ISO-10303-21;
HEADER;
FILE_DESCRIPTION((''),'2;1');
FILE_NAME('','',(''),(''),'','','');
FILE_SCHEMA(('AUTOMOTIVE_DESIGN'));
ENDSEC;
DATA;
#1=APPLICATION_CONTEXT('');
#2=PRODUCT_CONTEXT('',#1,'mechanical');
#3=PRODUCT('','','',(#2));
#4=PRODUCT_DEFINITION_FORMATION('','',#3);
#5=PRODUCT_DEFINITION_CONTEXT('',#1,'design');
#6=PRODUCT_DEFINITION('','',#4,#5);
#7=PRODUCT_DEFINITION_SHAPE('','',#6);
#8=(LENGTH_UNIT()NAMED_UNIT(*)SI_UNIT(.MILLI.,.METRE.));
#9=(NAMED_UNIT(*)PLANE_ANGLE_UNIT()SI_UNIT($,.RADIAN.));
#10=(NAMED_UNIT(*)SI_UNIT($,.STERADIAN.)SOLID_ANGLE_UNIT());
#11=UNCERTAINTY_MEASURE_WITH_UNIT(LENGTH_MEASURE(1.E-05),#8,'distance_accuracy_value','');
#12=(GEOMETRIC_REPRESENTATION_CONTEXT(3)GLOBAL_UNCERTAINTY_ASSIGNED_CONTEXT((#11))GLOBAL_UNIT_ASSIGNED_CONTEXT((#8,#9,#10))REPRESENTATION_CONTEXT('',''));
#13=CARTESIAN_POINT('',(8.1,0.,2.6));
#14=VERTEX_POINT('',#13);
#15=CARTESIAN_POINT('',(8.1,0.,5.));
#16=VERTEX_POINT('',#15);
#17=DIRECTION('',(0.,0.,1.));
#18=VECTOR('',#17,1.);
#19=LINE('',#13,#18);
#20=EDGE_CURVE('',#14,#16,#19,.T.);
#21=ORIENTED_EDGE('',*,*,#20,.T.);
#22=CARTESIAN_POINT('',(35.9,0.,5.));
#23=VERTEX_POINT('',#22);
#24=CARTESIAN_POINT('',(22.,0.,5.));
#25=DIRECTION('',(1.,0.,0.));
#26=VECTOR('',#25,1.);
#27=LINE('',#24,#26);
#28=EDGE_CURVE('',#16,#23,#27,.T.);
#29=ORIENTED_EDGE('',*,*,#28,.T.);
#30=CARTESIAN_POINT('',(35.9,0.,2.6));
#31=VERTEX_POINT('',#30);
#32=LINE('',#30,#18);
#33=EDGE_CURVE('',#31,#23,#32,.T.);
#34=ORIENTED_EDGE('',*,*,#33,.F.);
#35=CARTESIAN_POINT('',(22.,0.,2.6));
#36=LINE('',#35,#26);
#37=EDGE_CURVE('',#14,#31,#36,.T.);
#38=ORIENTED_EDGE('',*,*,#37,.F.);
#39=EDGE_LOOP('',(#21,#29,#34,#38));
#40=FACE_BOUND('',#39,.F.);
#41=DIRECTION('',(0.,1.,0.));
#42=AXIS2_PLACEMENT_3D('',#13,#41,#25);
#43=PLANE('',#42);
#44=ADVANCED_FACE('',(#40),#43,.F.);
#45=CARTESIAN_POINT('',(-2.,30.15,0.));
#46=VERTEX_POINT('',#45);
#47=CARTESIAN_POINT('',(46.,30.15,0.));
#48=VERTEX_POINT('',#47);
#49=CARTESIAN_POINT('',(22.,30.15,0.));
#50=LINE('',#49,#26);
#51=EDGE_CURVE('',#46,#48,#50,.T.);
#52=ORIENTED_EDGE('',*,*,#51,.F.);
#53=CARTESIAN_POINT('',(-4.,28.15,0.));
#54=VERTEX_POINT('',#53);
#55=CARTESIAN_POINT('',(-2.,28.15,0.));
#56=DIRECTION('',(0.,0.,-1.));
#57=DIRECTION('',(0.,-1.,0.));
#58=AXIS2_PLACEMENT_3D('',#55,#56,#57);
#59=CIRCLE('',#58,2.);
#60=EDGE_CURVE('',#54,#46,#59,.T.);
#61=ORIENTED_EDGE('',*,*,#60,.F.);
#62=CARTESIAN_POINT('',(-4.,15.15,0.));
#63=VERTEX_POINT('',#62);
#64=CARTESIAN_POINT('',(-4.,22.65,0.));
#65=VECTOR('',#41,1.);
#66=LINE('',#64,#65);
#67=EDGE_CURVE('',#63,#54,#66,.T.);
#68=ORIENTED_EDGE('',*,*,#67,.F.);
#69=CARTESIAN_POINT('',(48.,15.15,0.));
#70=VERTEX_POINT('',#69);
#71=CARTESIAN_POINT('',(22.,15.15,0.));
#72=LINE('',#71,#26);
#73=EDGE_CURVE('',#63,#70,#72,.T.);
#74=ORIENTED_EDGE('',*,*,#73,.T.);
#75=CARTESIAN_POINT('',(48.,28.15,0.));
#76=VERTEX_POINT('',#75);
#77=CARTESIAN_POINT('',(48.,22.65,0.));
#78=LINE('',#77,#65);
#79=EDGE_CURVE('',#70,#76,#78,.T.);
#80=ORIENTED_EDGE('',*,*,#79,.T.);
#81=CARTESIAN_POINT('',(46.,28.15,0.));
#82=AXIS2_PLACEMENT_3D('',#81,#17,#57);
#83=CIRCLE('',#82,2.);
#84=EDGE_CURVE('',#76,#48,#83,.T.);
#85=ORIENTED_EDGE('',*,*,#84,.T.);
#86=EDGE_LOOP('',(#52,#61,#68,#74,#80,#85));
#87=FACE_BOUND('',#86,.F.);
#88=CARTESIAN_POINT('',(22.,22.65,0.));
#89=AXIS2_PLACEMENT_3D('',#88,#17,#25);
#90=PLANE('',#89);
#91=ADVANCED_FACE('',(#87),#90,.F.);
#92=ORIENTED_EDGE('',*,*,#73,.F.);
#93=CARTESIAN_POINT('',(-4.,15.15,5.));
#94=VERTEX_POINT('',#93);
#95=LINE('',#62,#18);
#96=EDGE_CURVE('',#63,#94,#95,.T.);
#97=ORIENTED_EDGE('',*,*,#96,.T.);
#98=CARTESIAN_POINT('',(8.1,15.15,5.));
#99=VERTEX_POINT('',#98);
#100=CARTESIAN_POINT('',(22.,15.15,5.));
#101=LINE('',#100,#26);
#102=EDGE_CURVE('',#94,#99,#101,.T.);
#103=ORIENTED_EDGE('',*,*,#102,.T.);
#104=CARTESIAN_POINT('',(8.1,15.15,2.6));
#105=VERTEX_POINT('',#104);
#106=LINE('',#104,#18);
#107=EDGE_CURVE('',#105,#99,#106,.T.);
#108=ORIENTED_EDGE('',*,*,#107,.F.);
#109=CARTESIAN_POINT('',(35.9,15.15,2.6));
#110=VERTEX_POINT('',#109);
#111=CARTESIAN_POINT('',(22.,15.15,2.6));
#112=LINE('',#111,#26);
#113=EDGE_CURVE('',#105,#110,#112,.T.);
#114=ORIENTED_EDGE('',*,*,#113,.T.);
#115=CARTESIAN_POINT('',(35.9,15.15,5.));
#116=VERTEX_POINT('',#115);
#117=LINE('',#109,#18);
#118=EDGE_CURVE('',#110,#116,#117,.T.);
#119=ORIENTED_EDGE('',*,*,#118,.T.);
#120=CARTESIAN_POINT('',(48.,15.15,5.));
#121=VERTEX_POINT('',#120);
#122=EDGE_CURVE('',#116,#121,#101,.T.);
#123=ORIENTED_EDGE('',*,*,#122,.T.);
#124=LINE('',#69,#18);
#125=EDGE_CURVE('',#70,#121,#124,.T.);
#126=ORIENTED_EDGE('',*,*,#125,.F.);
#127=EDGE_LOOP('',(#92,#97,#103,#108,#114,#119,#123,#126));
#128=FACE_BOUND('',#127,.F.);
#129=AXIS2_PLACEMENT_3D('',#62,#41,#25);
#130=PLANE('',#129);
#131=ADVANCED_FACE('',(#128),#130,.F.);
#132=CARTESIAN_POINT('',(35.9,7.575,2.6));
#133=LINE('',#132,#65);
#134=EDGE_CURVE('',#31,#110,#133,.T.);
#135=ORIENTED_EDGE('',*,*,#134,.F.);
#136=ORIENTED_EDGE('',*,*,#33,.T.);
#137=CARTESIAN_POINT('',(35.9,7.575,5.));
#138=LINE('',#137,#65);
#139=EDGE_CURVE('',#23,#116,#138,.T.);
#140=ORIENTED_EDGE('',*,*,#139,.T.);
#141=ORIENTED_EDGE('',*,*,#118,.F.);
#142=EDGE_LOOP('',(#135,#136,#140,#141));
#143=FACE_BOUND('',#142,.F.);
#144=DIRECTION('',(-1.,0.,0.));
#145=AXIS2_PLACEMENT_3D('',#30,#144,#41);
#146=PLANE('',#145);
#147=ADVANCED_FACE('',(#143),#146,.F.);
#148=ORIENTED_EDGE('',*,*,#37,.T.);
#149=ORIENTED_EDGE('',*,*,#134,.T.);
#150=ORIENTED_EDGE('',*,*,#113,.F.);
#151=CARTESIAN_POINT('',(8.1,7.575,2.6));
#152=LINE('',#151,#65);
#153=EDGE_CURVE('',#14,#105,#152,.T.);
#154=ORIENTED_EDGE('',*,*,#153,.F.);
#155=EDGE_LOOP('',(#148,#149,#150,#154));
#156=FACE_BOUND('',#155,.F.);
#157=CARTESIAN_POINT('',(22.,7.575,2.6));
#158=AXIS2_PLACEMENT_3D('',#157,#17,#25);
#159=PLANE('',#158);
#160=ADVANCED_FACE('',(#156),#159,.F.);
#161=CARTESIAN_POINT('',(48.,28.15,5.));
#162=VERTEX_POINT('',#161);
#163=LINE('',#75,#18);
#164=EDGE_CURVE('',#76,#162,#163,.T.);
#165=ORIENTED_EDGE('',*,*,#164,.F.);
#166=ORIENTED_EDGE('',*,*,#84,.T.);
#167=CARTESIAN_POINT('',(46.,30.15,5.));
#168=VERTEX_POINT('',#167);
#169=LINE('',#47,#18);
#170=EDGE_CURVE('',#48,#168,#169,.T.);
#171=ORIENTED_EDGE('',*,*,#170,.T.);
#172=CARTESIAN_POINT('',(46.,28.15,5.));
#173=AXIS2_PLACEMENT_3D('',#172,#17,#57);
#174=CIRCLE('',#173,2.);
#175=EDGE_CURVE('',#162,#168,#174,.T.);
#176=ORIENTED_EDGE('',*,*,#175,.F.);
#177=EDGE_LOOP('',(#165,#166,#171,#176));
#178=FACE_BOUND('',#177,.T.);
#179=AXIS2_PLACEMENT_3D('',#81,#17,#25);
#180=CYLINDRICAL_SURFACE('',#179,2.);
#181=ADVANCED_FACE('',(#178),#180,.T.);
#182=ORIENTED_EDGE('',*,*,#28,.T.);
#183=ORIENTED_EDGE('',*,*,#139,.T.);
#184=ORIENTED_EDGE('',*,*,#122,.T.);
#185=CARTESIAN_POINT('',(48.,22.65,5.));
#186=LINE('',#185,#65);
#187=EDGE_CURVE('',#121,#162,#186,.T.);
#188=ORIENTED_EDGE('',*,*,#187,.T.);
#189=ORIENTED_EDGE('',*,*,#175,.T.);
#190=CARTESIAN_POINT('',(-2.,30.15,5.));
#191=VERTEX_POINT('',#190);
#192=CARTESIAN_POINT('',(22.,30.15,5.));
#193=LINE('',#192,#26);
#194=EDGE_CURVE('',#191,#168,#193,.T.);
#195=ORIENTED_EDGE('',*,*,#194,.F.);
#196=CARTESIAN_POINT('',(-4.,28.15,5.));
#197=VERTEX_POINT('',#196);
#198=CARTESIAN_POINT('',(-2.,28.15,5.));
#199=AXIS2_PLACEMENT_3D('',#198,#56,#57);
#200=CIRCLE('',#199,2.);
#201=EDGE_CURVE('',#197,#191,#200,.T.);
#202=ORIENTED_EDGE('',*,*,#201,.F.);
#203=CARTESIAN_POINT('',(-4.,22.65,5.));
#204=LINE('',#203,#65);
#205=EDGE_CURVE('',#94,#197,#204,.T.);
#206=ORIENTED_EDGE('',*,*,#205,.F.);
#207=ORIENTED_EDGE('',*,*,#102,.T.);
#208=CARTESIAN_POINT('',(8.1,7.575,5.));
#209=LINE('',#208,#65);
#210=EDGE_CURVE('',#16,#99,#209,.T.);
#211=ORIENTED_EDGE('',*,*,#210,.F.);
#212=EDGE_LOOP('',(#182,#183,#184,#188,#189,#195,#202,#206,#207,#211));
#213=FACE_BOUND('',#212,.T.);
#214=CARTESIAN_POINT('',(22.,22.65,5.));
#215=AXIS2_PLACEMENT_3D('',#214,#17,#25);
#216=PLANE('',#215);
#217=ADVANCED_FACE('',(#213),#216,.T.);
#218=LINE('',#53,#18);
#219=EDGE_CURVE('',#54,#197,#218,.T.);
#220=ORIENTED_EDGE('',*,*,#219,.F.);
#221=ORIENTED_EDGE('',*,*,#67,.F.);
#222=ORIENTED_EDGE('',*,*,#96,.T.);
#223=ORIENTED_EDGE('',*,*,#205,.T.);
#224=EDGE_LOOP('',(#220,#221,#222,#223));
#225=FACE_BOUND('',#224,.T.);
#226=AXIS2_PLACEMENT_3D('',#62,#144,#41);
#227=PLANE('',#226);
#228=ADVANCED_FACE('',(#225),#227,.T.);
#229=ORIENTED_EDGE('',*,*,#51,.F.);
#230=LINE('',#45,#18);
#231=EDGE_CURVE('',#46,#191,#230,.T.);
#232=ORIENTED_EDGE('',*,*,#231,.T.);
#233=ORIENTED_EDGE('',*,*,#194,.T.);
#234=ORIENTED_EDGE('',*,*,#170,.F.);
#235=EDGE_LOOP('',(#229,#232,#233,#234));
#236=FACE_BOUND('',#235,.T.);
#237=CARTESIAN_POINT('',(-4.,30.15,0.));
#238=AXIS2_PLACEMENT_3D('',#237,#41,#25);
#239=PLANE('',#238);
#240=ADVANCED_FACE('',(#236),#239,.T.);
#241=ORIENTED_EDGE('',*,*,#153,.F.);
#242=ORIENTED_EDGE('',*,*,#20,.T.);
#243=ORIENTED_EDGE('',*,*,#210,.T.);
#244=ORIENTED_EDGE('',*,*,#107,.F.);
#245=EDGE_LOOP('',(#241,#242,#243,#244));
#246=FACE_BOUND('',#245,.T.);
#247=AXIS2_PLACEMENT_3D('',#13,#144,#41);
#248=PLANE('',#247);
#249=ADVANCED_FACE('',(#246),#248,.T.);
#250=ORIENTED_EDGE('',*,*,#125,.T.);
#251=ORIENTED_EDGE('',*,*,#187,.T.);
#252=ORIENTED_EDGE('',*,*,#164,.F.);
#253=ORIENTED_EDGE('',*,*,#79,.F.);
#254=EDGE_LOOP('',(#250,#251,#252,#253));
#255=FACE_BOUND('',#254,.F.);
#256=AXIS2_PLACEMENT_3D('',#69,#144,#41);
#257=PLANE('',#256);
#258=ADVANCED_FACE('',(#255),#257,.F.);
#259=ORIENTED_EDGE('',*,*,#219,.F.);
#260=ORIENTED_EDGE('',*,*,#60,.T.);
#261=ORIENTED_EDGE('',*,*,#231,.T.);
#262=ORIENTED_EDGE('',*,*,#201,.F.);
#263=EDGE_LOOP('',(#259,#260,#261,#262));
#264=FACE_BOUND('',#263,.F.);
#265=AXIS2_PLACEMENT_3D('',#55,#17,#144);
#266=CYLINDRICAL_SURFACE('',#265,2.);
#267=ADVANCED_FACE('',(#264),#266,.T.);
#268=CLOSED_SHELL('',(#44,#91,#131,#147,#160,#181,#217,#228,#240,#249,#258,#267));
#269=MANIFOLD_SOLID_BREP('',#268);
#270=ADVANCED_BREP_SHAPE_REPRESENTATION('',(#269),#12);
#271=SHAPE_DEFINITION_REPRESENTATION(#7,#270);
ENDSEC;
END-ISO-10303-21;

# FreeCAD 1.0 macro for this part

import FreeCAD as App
import Part
import Sketcher


def edges_at(feature, points):
    """Names of the edges that pass closest to the given points."""
    edges = feature.Shape.Edges
    near = lambda p: min(range(len(edges)), key=lambda i: edges[i].distToShape(Part.Vertex(*p))[0])
    return sorted({f"Edge{near(p) + 1}" for p in points})


def add_polygon(sketch, points):
    """Adds a closed chain of lines whose ends are joined by coincident constraints."""
    first, n = sketch.GeometryCount, len(points)
    for a, b in zip(points, points[1:] + points[:1]):
        sketch.addGeometry(Part.LineSegment(App.Vector(*a, 0), App.Vector(*b, 0)), False)
    for i in range(n):
        sketch.addConstraint(Sketcher.Constraint("Coincident", first + i, 2, first + (i + 1) % n, 1))

doc = App.newDocument("Part")
params = doc.addObject("Spreadsheet::Sheet", "Params")
for row, (alias, value) in enumerate([
    ("sketch1_width", "52 mm"),
    ("sketch1_height", "15 mm"),
    ("pad1_length", "5 mm"),
    ("fillet_radius", "2 mm"),
    ("sketch2_width", "27.8 mm"),
    ("sketch2_height", "15.15 mm"),
    ("pad2_length", "2.4 mm"),
], start=1):
    params.set(f"A{row}", alias)
    params.set(f"B{row}", "=" + value)
    params.setAlias(f"B{row}", alias)

body = doc.addObject("PartDesign::Body", "Body")

# Sketch on XY plane
sketch1 = body.newObject("Sketcher::SketchObject", "Sketch")
sketch1.AttachmentSupport = (doc.getObject("XY_Plane"), [""])
sketch1.MapMode = "FlatFace"
add_polygon(sketch1, [(-4, 32), (-4, 17), (48, 17), (48, 32)])  # lines 0-3
sketch1.addConstraint(Sketcher.Constraint("Vertical", 0))
sketch1.addConstraint(Sketcher.Constraint("Horizontal", 1))
sketch1.addConstraint(Sketcher.Constraint("Vertical", 2))
sketch1.addConstraint(Sketcher.Constraint("Horizontal", 3))
sketch1.addConstraint(Sketcher.Constraint("DistanceX", 1, 1, 1, 2, 52.0))
sketch1.addConstraint(Sketcher.Constraint("DistanceY", 0, 2, 0, 1, 15.0))
sketch1.addConstraint(Sketcher.Constraint("DistanceX", 0, 2, -1, 1, 4.0))
sketch1.addConstraint(Sketcher.Constraint("DistanceY", -1, 1, 0, 2, 17.15))
sketch1.setExpression("Constraints[8]", "Params.sketch1_width")
sketch1.setExpression("Constraints[9]", "Params.sketch1_height")
pad1 = body.newObject("PartDesign::Pad", "Pad")
pad1.Profile = sketch1
pad1.setExpression("Length", "Params.pad1_length")
doc.recompute()

fillet = body.newObject("PartDesign::Fillet", "Fillet")
fillet.Base = (pad1, edges_at(pad1, [(-4, 32.15, 2.5), (48, 32.15, 2.5)]))
fillet.setExpression("Radius", "Params.fillet_radius")
body2 = doc.addObject("PartDesign::Body", "Body001")

# Sketch on XY plane
sketch2 = body2.newObject("Sketcher::SketchObject", "Sketch001")
sketch2.AttachmentSupport = (doc.getObject("XY_Plane001"), [""])
sketch2.MapMode = "FlatFace"
sketch2.AttachmentOffset = App.Placement(App.Vector(0, 0, 2.6), App.Rotation())
add_polygon(sketch2, [(8, 17), (8, 2), (36, 2), (36, 17)])  # lines 0-3
sketch2.addConstraint(Sketcher.Constraint("Vertical", 0))
sketch2.addConstraint(Sketcher.Constraint("Horizontal", 1))
sketch2.addConstraint(Sketcher.Constraint("Vertical", 2))
sketch2.addConstraint(Sketcher.Constraint("Horizontal", 3))
sketch2.addConstraint(Sketcher.Constraint("DistanceX", 1, 1, 1, 2, 27.8))
sketch2.addConstraint(Sketcher.Constraint("DistanceY", -1, 1, 0, 2, 2.0))
sketch2.addConstraint(Sketcher.Constraint("DistanceY", 0, 2, 0, 1, 15.15))
sketch2.addConstraint(Sketcher.Constraint("DistanceX", -1, 1, 0, 2, 8.1))
sketch2.setExpression("Constraints[8]", "Params.sketch2_width")
sketch2.setExpression("Constraints[10]", "Params.sketch2_height")
pad2 = body2.newObject("PartDesign::Pad", "Pad001")
pad2.Profile = sketch2
pad2.setExpression("Length", "Params.pad2_length")
doc.recompute()

boolean = body2.newObject("PartDesign::Boolean", "Boolean")
boolean.Type = "Fuse"
boolean.addObjects([body])
body3 = doc.addObject("PartDesign::Body", "Body002")
doc.recompute()

body2.Placement = App.Placement(App.Vector(0, -2, 0), App.Rotation(App.Vector(0, 0, 1), 0))
boolean2 = body3.newObject("PartDesign::Boolean", "Boolean001")
boolean2.Type = "Fuse"
boolean2.addObjects([body2])

doc.recompute()
